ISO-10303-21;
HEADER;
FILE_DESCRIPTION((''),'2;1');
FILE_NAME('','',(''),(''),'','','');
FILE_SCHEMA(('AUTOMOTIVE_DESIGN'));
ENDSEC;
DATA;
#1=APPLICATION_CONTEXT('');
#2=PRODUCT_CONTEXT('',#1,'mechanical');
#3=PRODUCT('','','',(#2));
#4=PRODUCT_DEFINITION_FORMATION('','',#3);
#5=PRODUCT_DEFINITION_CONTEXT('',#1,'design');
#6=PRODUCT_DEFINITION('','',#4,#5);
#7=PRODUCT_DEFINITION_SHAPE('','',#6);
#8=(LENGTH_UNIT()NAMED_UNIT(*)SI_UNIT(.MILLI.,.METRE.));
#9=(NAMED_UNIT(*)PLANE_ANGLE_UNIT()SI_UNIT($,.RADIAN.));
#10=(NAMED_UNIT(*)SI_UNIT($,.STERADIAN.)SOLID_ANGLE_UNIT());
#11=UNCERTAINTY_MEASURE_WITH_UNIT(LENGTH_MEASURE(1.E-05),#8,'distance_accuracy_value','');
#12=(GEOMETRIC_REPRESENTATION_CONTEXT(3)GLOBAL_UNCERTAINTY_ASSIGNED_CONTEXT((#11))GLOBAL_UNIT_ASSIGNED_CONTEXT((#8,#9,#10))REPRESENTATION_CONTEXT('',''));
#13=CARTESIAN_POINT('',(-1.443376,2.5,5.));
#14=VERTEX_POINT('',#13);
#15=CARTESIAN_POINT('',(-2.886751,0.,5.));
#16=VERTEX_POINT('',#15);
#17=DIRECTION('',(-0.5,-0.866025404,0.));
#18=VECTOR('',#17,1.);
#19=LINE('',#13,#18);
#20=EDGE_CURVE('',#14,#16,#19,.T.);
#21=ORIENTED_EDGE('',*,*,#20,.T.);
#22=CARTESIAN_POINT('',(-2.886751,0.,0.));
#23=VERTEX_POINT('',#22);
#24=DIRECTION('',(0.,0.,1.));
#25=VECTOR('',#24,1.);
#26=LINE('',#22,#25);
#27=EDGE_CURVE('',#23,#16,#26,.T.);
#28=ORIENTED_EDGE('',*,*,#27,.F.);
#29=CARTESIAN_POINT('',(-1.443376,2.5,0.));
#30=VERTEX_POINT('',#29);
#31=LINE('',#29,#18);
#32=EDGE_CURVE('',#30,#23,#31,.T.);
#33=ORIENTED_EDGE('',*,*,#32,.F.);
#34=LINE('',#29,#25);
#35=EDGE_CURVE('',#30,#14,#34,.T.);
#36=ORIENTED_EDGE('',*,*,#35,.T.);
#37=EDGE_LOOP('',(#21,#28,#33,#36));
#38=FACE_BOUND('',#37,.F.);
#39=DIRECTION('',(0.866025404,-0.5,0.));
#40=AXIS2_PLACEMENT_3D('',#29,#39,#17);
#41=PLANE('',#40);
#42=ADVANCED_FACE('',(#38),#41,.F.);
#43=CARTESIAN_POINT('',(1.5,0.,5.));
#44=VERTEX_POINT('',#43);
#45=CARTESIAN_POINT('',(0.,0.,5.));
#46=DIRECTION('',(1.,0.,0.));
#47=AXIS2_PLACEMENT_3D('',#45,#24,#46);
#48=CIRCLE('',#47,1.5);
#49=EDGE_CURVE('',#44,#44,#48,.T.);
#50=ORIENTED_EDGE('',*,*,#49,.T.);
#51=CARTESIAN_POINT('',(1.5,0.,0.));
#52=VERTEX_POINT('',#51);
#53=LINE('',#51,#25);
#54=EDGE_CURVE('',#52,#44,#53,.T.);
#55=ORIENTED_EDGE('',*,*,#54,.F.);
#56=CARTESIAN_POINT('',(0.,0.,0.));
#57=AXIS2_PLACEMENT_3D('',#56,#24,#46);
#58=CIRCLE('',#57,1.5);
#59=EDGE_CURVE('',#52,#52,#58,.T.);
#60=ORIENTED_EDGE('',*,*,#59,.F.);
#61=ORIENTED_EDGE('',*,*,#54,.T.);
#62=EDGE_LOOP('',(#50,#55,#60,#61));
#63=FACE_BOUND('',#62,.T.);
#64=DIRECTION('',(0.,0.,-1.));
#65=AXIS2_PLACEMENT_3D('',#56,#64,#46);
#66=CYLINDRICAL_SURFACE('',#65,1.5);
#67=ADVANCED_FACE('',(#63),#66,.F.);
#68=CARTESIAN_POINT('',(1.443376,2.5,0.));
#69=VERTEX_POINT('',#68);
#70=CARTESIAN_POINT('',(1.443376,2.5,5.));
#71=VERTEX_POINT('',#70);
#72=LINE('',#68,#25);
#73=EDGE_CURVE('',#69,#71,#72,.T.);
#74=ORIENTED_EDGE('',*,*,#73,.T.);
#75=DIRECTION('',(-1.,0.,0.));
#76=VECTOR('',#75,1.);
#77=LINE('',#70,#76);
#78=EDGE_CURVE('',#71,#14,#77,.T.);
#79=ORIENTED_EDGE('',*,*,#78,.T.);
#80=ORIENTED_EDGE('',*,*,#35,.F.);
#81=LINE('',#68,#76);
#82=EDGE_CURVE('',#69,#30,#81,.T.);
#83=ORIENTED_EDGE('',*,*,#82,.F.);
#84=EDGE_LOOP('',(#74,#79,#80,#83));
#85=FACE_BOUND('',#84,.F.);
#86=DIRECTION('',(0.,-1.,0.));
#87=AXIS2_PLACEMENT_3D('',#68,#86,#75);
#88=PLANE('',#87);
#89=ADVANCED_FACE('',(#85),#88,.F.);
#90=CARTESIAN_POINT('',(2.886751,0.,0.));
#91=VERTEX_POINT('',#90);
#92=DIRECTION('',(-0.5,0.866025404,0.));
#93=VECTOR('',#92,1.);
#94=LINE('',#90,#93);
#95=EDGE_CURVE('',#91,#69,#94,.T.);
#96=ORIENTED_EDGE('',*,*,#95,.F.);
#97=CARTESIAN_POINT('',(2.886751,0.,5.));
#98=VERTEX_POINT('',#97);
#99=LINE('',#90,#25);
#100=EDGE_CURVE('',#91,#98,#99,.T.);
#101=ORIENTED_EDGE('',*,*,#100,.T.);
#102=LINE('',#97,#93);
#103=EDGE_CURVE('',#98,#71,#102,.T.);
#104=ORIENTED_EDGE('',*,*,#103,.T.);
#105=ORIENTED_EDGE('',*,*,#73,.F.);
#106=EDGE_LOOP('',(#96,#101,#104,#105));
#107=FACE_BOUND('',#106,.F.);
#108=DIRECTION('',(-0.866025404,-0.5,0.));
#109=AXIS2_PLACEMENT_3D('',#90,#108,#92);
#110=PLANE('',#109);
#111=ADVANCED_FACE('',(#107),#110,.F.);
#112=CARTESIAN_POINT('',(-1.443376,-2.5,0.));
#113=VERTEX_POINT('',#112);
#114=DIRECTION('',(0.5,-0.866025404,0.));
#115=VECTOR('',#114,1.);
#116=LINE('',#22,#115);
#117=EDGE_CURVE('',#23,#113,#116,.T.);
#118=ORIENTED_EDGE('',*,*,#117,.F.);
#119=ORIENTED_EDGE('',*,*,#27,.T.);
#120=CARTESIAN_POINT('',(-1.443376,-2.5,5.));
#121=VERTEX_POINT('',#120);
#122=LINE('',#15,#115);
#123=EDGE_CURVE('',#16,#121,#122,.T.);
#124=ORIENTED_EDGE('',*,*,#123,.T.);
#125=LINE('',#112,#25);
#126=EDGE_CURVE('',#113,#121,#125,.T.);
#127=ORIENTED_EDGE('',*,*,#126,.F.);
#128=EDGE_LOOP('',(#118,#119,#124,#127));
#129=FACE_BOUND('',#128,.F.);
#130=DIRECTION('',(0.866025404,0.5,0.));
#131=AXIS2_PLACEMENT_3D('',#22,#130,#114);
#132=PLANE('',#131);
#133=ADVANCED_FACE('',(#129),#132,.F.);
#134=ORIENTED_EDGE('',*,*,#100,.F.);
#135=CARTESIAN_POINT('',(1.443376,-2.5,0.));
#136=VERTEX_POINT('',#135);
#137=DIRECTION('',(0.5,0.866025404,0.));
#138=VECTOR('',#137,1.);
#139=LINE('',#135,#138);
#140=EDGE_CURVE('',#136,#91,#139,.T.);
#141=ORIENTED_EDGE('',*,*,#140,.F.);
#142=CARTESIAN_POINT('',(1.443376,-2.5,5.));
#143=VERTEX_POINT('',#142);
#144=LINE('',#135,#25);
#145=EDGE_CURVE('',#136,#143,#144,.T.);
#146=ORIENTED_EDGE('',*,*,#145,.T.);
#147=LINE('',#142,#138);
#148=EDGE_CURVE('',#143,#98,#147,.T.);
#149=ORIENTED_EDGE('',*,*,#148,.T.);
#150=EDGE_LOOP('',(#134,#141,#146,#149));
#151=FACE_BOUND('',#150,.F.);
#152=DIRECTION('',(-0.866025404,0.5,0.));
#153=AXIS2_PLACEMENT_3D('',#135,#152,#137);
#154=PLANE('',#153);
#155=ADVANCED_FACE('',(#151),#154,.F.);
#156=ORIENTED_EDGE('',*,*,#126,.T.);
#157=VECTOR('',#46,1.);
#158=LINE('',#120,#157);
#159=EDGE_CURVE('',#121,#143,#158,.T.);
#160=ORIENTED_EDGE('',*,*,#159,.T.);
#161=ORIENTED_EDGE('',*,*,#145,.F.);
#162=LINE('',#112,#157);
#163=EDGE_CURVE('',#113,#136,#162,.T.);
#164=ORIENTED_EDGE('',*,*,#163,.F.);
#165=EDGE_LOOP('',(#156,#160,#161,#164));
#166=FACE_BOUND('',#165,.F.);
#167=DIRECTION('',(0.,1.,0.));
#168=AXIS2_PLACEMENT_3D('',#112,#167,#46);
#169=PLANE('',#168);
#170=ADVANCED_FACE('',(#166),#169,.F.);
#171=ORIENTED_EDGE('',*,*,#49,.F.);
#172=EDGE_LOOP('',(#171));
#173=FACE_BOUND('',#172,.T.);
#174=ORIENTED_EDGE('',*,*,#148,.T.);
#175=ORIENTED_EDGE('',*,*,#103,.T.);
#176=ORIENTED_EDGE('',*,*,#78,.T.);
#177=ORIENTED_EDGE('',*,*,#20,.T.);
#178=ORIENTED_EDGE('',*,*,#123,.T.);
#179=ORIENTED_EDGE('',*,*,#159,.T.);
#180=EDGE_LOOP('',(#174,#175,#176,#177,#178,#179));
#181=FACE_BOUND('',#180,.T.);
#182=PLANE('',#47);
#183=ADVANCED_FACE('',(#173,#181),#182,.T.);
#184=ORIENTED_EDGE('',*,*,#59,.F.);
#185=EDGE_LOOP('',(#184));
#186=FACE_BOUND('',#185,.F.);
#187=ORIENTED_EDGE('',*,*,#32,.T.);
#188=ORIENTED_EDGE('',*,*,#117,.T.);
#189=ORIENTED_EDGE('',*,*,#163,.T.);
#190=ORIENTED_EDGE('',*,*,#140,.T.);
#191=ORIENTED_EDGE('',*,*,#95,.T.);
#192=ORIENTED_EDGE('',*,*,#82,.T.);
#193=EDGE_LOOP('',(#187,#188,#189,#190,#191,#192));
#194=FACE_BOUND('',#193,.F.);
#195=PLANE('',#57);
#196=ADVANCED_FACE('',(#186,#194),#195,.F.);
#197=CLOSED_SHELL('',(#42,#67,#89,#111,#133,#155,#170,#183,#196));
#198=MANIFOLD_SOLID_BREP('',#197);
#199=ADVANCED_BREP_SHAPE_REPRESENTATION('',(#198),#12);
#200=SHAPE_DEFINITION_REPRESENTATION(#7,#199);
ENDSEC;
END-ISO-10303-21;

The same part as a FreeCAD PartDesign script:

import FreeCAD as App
import Part
import Sketcher
from FreeCAD import Vector
Q = App.Units.Quantity


def add_polygon(sketch, points):
    """Adds a closed chain of lines whose ends are joined by coincident constraints."""
    first, n = sketch.GeometryCount, len(points)
    for a, b in zip(points, points[1:] + points[:1]):
        sketch.addGeometry(Part.LineSegment(App.Vector(*a, 0), App.Vector(*b, 0)), False)
    for i in range(n):
        sketch.addConstraint(Sketcher.Constraint("Coincident", first + i, 2, first + (i + 1) % n, 1))

doc = App.newDocument("Part")
body = doc.addObject("PartDesign::Body", "Body")

# Sketch on XY plane
sketch1 = body.newObject("Sketcher::SketchObject", "Sketch")
sketch1.AttachmentSupport = (doc.getObject("XY_Plane"), [""])
sketch1.MapMode = "FlatFace"
add_polygon(sketch1, [(1.4, -2.5), (2.9, 0), (1.4, 2.5), (-1.4, 2.5), (-2.9, 0), (-1.4, -2.5)])  # lines 0-5
sketch1.addGeometry(Part.Circle(Vector(0, 0, 0), Vector(0, 0, 1), 1.5), False)  # 6
sketch1.addConstraint([
    Sketcher.Constraint("Horizontal", 2),
    Sketcher.Constraint("Horizontal", 5),
    Sketcher.Constraint("Coincident", 6, 3, -1, 1),
    Sketcher.Constraint("Symmetric", 0, 2, 3, 2, -1, 1),
    Sketcher.Constraint("Symmetric", 1, 2, 4, 2, -1, 1),
    Sketcher.Constraint("PointOnObject", 0, 2, -1),
    Sketcher.Constraint("Parallel", 0, 3),
    Sketcher.Constraint("Vertical", 2, 2, 4, 2),
    Sketcher.Constraint("Diameter", 6, 3.0),
    Sketcher.Constraint("Angle", 0, Q("60 deg")),
    Sketcher.Constraint("DistanceY", 4, 2, 2, 2, 5.0),
    Sketcher.Constraint("DistanceX", 2, 2, 2, 1, 2.886751),
])
pad1 = body.newObject("PartDesign::Pad", "Pad")
pad1.Profile = sketch1
pad1.Length = 5

doc.recompute()
